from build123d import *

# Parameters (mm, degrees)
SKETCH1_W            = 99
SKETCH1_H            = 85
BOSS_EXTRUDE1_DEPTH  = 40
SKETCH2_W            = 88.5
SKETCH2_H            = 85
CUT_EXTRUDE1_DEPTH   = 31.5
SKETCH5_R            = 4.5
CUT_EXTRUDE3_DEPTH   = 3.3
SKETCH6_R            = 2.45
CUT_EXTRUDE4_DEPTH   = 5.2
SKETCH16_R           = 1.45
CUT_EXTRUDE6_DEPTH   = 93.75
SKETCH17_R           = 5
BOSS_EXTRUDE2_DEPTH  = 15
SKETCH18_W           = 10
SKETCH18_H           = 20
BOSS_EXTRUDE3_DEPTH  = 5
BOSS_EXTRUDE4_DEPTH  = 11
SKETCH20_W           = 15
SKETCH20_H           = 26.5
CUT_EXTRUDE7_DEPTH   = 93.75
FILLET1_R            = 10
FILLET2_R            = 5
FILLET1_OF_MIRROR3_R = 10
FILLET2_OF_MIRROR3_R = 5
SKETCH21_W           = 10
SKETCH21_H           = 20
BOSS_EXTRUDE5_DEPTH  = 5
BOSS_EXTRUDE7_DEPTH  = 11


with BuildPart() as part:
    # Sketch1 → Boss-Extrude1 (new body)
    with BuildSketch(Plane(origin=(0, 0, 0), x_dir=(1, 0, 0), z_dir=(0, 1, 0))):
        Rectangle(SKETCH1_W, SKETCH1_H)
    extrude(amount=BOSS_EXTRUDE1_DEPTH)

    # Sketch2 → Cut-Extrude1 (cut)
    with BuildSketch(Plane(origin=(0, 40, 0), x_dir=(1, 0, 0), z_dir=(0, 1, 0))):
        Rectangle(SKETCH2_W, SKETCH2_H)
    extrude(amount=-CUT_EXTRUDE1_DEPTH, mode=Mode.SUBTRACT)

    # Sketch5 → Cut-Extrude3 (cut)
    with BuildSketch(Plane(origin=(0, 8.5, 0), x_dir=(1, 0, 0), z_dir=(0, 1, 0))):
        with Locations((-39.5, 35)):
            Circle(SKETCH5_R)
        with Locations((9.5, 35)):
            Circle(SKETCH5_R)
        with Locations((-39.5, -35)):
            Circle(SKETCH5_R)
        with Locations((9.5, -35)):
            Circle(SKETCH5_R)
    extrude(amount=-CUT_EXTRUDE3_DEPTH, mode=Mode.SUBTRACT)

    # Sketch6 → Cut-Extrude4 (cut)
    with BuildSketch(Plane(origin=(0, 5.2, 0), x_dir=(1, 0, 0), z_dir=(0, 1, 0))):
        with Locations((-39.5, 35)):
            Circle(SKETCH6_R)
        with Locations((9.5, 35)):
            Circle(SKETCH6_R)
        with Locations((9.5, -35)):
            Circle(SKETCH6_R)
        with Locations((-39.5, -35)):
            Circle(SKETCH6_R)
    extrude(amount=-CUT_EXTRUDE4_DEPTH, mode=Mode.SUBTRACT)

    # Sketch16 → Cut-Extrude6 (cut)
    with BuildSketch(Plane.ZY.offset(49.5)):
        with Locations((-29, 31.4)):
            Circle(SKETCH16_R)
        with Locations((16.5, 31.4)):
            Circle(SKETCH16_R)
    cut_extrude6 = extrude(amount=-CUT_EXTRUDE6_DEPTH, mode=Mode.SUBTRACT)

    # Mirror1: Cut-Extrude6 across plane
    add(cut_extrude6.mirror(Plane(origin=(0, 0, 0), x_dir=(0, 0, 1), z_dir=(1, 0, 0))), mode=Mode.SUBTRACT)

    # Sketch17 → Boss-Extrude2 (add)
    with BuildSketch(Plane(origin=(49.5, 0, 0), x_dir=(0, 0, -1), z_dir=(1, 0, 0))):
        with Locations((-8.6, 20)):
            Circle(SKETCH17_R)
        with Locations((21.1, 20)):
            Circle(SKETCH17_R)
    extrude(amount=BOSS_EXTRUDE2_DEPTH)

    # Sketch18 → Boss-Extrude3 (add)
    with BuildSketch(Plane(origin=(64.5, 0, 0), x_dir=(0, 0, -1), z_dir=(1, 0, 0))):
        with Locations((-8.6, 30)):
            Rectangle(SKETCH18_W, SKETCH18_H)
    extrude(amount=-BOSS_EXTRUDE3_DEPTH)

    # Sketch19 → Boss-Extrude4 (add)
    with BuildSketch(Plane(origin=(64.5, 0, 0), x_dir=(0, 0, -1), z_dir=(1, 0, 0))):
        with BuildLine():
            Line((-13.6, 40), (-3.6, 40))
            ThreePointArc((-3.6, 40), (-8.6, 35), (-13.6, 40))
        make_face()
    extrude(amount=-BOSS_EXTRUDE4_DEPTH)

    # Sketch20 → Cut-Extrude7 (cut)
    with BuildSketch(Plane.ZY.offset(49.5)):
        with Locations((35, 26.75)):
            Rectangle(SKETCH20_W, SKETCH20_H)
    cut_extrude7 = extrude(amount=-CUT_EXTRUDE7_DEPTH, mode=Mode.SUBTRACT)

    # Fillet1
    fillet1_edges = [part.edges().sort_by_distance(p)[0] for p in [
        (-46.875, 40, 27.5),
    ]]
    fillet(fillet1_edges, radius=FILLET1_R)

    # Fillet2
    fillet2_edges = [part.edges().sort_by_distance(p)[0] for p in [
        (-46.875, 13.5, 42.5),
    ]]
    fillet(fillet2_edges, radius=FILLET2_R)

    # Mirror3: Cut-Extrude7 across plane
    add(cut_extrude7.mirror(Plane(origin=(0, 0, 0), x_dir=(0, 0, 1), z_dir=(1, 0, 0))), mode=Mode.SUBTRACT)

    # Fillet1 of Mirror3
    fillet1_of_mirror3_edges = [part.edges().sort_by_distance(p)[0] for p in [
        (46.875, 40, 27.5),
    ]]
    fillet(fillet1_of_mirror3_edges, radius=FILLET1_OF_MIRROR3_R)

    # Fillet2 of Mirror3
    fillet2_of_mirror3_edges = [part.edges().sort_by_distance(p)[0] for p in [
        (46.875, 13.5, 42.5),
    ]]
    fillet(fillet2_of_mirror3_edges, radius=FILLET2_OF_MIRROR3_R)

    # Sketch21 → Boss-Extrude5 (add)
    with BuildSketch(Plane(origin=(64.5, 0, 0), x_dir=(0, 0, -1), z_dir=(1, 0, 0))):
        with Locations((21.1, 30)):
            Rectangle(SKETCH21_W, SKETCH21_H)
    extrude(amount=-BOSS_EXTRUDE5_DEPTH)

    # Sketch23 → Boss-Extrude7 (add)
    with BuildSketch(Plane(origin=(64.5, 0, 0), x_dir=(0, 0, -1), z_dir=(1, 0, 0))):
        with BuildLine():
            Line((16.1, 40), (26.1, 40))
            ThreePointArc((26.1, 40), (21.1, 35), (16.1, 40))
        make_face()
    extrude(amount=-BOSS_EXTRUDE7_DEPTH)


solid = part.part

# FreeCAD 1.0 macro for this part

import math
import FreeCAD as App
import Part
import Sketcher


def edges_at(feature, points):
    """Names of the edges that pass closest to the given points."""
    edges = feature.Shape.Edges
    near = lambda p: min(range(len(edges)), key=lambda i: edges[i].distToShape(Part.Vertex(*p))[0])
    return sorted({f"Edge{near(p) + 1}" for p in points})


def add_polygon(sketch, points):
    """Adds a closed chain of lines whose ends are joined by coincident constraints."""
    first, n = sketch.GeometryCount, len(points)
    for a, b in zip(points, points[1:] + points[:1]):
        sketch.addGeometry(Part.LineSegment(App.Vector(*a, 0), App.Vector(*b, 0)), False)
    for i in range(n):
        sketch.addConstraint(Sketcher.Constraint("Coincident", first + i, 2, first + (i + 1) % n, 1))

doc = App.newDocument("Part")
params = doc.addObject("Spreadsheet::Sheet", "Params")
for row, (alias, value) in enumerate([
    ("sketch1_width", "99 mm"),
    ("sketch1_height", "85 mm"),
    ("pad1_length", "40 mm"),
    ("sketch2_height", "85 mm"),
    ("sketch2_width", "88.5 mm"),
    ("pocket1_length", "31.5 mm"),
    ("sketch3_diameter", "9 mm"),
    ("pocket2_length", "3.3 mm"),
    ("sketch4_diameter", "4.9 mm"),
    ("pocket3_length", "5.2 mm"),
    ("sketch5_diameter", "2.9 mm"),
    ("pocket4_length", "93.75 mm"),
    ("sketch6_diameter", "10 mm"),
    ("pad2_length", "15 mm"),
    ("sketch7_width", "20 mm"),
    ("sketch7_height", "10 mm"),
    ("pad3_length", "5 mm"),
    ("sketch8_radius", "5 mm"),
    ("pad4_length", "11 mm"),
    ("sketch9_height", "15 mm"),
    ("sketch9_width", "26.5 mm"),
    ("pocket5_length", "93.75 mm"),
    ("fillet_radius", "10 mm"),
    ("fillet2_radius", "5 mm"),
    ("fillet3_radius", "10 mm"),
    ("fillet4_radius", "5 mm"),
    ("sketch10_width", "20 mm"),
    ("sketch10_height", "10 mm"),
    ("pad5_length", "5 mm"),
    ("sketch11_radius", "5 mm"),
    ("pad6_length", "11 mm"),
], start=1):
    params.set(f"A{row}", alias)
    params.set(f"B{row}", "=" + value)
    params.setAlias(f"B{row}", alias)

body = doc.addObject("PartDesign::Body", "Body")

# Sketch on XZ plane
sketch1 = body.newObject("Sketcher::SketchObject", "Sketch")
sketch1.AttachmentSupport = (doc.getObject("XZ_Plane"), [""])
sketch1.MapMode = "FlatFace"
add_polygon(sketch1, [(-50, -42), (-50, 42), (50, 42), (50, -42)])  # lines 0-3
sketch1.addConstraint(Sketcher.Constraint("Vertical", 0))
sketch1.addConstraint(Sketcher.Constraint("Horizontal", 1))
sketch1.addConstraint(Sketcher.Constraint("Vertical", 2))
sketch1.addConstraint(Sketcher.Constraint("Horizontal", 3))
sketch1.addConstraint(Sketcher.Constraint("Symmetric", 0, 2, 2, 2, -1, 1))
sketch1.addConstraint(Sketcher.Constraint("DistanceX", 1, 1, 1, 2, 99.0))
sketch1.addConstraint(Sketcher.Constraint("DistanceY", 0, 1, 0, 2, 85.0))
sketch1.setExpression("Constraints[9]", "Params.sketch1_width")
sketch1.setExpression("Constraints[10]", "Params.sketch1_height")
pad1 = body.newObject("PartDesign::Pad", "Pad")
pad1.Profile = sketch1
pad1.setExpression("Length", "Params.pad1_length")
pad1.Reversed = True

# Sketch on XZ plane
sketch2 = body.newObject("Sketcher::SketchObject", "Sketch001")
sketch2.AttachmentSupport = (doc.getObject("XZ_Plane"), [""])
sketch2.MapMode = "FlatFace"
sketch2.AttachmentOffset = App.Placement(App.Vector(0, 0, -40), App.Rotation())
add_polygon(sketch2, [(-44, -42), (-44, 42), (44, 42), (44, -42)])  # lines 0-3
sketch2.addConstraint(Sketcher.Constraint("Vertical", 0))
sketch2.addConstraint(Sketcher.Constraint("Horizontal", 1))
sketch2.addConstraint(Sketcher.Constraint("Vertical", 2))
sketch2.addConstraint(Sketcher.Constraint("Horizontal", 3))
sketch2.addConstraint(Sketcher.Constraint("Symmetric", 0, 2, 2, 2, -1, 1))
sketch2.addConstraint(Sketcher.Constraint("DistanceY", 0, 1, 0, 2, 85.0))
sketch2.addConstraint(Sketcher.Constraint("DistanceX", 1, 1, 1, 2, 88.5))
sketch2.setExpression("Constraints[9]", "Params.sketch2_height")
sketch2.setExpression("Constraints[10]", "Params.sketch2_width")
pocket1 = body.newObject("PartDesign::Pocket", "Pocket")
pocket1.Profile = sketch2
pocket1.setExpression("Length", "Params.pocket1_length")
pocket1.Reversed = True

# Sketch on XZ plane
sketch3 = body.newObject("Sketcher::SketchObject", "Sketch002")
sketch3.AttachmentSupport = (doc.getObject("XZ_Plane"), [""])
sketch3.MapMode = "FlatFace"
sketch3.AttachmentOffset = App.Placement(App.Vector(0, 0, -8.5), App.Rotation())
sketch3.addGeometry(Part.Circle(App.Vector(-39.5, -35, 0), App.Vector(0, 0, 1), 4.5), False)
sketch3.addGeometry(Part.Circle(App.Vector(9.5, -35, 0), App.Vector(0, 0, 1), 4.5), False)
sketch3.addGeometry(Part.Circle(App.Vector(-39.5, 35, 0), App.Vector(0, 0, 1), 4.5), False)
sketch3.addGeometry(Part.Circle(App.Vector(9.5, 35, 0), App.Vector(0, 0, 1), 4.5), False)
sketch3.addConstraint(Sketcher.Constraint("Equal", 0, 1))
sketch3.addConstraint(Sketcher.Constraint("Equal", 1, 2))
sketch3.addConstraint(Sketcher.Constraint("Equal", 2, 3))
sketch3.addConstraint(Sketcher.Constraint("Symmetric", 0, 3, 2, 3, -1))
sketch3.addConstraint(Sketcher.Constraint("Symmetric", 1, 3, 3, 3, -1))
sketch3.addConstraint(Sketcher.Constraint("Horizontal", 0, 3, 1, 3))
sketch3.addConstraint(Sketcher.Constraint("Diameter", 0, 9.0))
sketch3.addConstraint(Sketcher.Constraint("DistanceY", 0, 3, -1, 1, 35.0))
sketch3.addConstraint(Sketcher.Constraint("DistanceX", 0, 3, 1, 3, 49.0))
sketch3.addConstraint(Sketcher.Constraint("DistanceX", 0, 3, -1, 1, 39.5))
sketch3.setExpression("Constraints[6]", "Params.sketch3_diameter")
pocket2 = body.newObject("PartDesign::Pocket", "Pocket001")
pocket2.Profile = sketch3
pocket2.setExpression("Length", "Params.pocket2_length")
pocket2.Reversed = True

# Sketch on XZ plane
sketch4 = body.newObject("Sketcher::SketchObject", "Sketch003")
sketch4.AttachmentSupport = (doc.getObject("XZ_Plane"), [""])
sketch4.MapMode = "FlatFace"
sketch4.AttachmentOffset = App.Placement(App.Vector(0, 0, -5.2), App.Rotation())
sketch4.addGeometry(Part.Circle(App.Vector(-39.5, -35, 0), App.Vector(0, 0, 1), 2.5), False)
sketch4.addGeometry(Part.Circle(App.Vector(9.5, -35, 0), App.Vector(0, 0, 1), 2.5), False)
sketch4.addGeometry(Part.Circle(App.Vector(9.5, 35, 0), App.Vector(0, 0, 1), 2.5), False)
sketch4.addGeometry(Part.Circle(App.Vector(-39.5, 35, 0), App.Vector(0, 0, 1), 2.5), False)
sketch4.addConstraint(Sketcher.Constraint("Equal", 0, 1))
sketch4.addConstraint(Sketcher.Constraint("Equal", 1, 2))
sketch4.addConstraint(Sketcher.Constraint("Equal", 2, 3))
sketch4.addConstraint(Sketcher.Constraint("Symmetric", 1, 3, 2, 3, -1))
sketch4.addConstraint(Sketcher.Constraint("Symmetric", 0, 3, 3, 3, -1))
sketch4.addConstraint(Sketcher.Constraint("Horizontal", 0, 3, 1, 3))
sketch4.addConstraint(Sketcher.Constraint("Diameter", 0, 4.9))
sketch4.addConstraint(Sketcher.Constraint("DistanceY", 0, 3, -1, 1, 35.0))
sketch4.addConstraint(Sketcher.Constraint("DistanceX", 0, 3, 1, 3, 49.0))
sketch4.addConstraint(Sketcher.Constraint("DistanceX", 0, 3, -1, 1, 39.5))
sketch4.setExpression("Constraints[6]", "Params.sketch4_diameter")
pocket3 = body.newObject("PartDesign::Pocket", "Pocket002")
pocket3.Profile = sketch4
pocket3.setExpression("Length", "Params.pocket3_length")
pocket3.Reversed = True

# Sketch on YZ plane
sketch5 = body.newObject("Sketcher::SketchObject", "Sketch004")
sketch5.AttachmentSupport = (doc.getObject("YZ_Plane"), [""])
sketch5.MapMode = "FlatFace"
sketch5.AttachmentOffset = App.Placement(App.Vector(0, 0, -49.5), App.Rotation())
sketch5.addGeometry(Part.Circle(App.Vector(31.4, -29, 0), App.Vector(0, 0, 1), 1.4), False)
sketch5.addGeometry(Part.Circle(App.Vector(31.4, 16.5, 0), App.Vector(0, 0, 1), 1.4), False)
sketch5.addConstraint(Sketcher.Constraint("Equal", 0, 1))
sketch5.addConstraint(Sketcher.Constraint("Vertical", 0, 3, 1, 3))
sketch5.addConstraint(Sketcher.Constraint("Diameter", 0, 2.9))
sketch5.addConstraint(Sketcher.Constraint("DistanceY", 0, 3, -1, 1, 29.0))
sketch5.addConstraint(Sketcher.Constraint("DistanceX", -1, 1, 0, 3, 31.4))
sketch5.addConstraint(Sketcher.Constraint("DistanceY", -1, 1, 1, 3, 16.5))
sketch5.setExpression("Constraints[2]", "Params.sketch5_diameter")
pocket4 = body.newObject("PartDesign::Pocket", "Pocket003")
pocket4.Profile = sketch5
pocket4.setExpression("Length", "Params.pocket4_length")
pocket4.Reversed = True
doc.recompute()

mirrored = body.newObject("PartDesign::Mirrored", "Mirrored")
mirrored.Originals = [pocket4]
mirrored.MirrorPlane = (doc.getObject("YZ_Plane"), [""])
body.Tip = mirrored

# Sketch on YZ plane
sketch6 = body.newObject("Sketcher::SketchObject", "Sketch005")
sketch6.AttachmentSupport = (doc.getObject("YZ_Plane"), [""])
sketch6.MapMode = "FlatFace"
sketch6.AttachmentOffset = App.Placement(App.Vector(0, 0, 49.5), App.Rotation())
sketch6.addGeometry(Part.Circle(App.Vector(20, 9, 0), App.Vector(0, 0, 1), 5), False)
sketch6.addGeometry(Part.Circle(App.Vector(20, -21, 0), App.Vector(0, 0, 1), 5), False)
sketch6.addConstraint(Sketcher.Constraint("Equal", 0, 1))
sketch6.addConstraint(Sketcher.Constraint("Vertical", 0, 3, 1, 3))
sketch6.addConstraint(Sketcher.Constraint("Diameter", 0, 10.0))
sketch6.addConstraint(Sketcher.Constraint("DistanceX", -1, 1, 0, 3, 20.0))
sketch6.addConstraint(Sketcher.Constraint("DistanceY", -1, 1, 0, 3, 8.6))
sketch6.addConstraint(Sketcher.Constraint("DistanceY", 1, 3, -1, 1, 21.1))
sketch6.setExpression("Constraints[2]", "Params.sketch6_diameter")
pad2 = body.newObject("PartDesign::Pad", "Pad001")
pad2.Profile = sketch6
pad2.setExpression("Length", "Params.pad2_length")

# Sketch on YZ plane
sketch7 = body.newObject("Sketcher::SketchObject", "Sketch006")
sketch7.AttachmentSupport = (doc.getObject("YZ_Plane"), [""])
sketch7.MapMode = "FlatFace"
sketch7.AttachmentOffset = App.Placement(App.Vector(0, 0, 64.5), App.Rotation())
add_polygon(sketch7, [(40, 14), (20, 14), (20, 4), (40, 4)])  # lines 0-3
sketch7.addConstraint(Sketcher.Constraint("Horizontal", 0))
sketch7.addConstraint(Sketcher.Constraint("Vertical", 1))
sketch7.addConstraint(Sketcher.Constraint("Horizontal", 2))
sketch7.addConstraint(Sketcher.Constraint("Vertical", 3))
sketch7.addConstraint(Sketcher.Constraint("DistanceX", 0, 2, 0, 1, 20.0))
sketch7.addConstraint(Sketcher.Constraint("DistanceY", 1, 2, 1, 1, 10.0))
sketch7.addConstraint(Sketcher.Constraint("DistanceX", -1, 1, 0, 2, 20.0))
sketch7.addConstraint(Sketcher.Constraint("DistanceY", -1, 1, 0, 2, 13.6))
sketch7.setExpression("Constraints[8]", "Params.sketch7_width")
sketch7.setExpression("Constraints[9]", "Params.sketch7_height")
pad3 = body.newObject("PartDesign::Pad", "Pad002")
pad3.Profile = sketch7
pad3.setExpression("Length", "Params.pad3_length")
pad3.Reversed = True

# Sketch on YZ plane
sketch8 = body.newObject("Sketcher::SketchObject", "Sketch007")
sketch8.AttachmentSupport = (doc.getObject("YZ_Plane"), [""])
sketch8.MapMode = "FlatFace"
sketch8.AttachmentOffset = App.Placement(App.Vector(0, 0, 64.5), App.Rotation())
sketch8.addGeometry(Part.LineSegment(App.Vector(40, 4, 0), App.Vector(40, 14, 0)), False)
sketch8.addGeometry(Part.ArcOfCircle(Part.Circle(App.Vector(40, 9, 0), App.Vector(0, 0, 1), 5), math.radians(90), math.radians(270)), False)
sketch8.addConstraint(Sketcher.Constraint("Coincident", 0, 1, 1, 2))
sketch8.addConstraint(Sketcher.Constraint("Coincident", 1, 1, 0, 2))
sketch8.addConstraint(Sketcher.Constraint("Vertical", 0))
sketch8.addConstraint(Sketcher.Constraint("Vertical", 1, 3, 0, 1))
sketch8.addConstraint(Sketcher.Constraint("Radius", 1, 5.0))
sketch8.addConstraint(Sketcher.Constraint("DistanceX", -1, 1, 1, 3, 40.0))
sketch8.addConstraint(Sketcher.Constraint("DistanceY", -1, 1, 1, 3, 8.6))
sketch8.setExpression("Constraints[4]", "Params.sketch8_radius")
pad4 = body.newObject("PartDesign::Pad", "Pad003")
pad4.Profile = sketch8
pad4.setExpression("Length", "Params.pad4_length")
pad4.Reversed = True

# Sketch on YZ plane
sketch9 = body.newObject("Sketcher::SketchObject", "Sketch008")
sketch9.AttachmentSupport = (doc.getObject("YZ_Plane"), [""])
sketch9.MapMode = "FlatFace"
sketch9.AttachmentOffset = App.Placement(App.Vector(0, 0, -49.5), App.Rotation())
add_polygon(sketch9, [(40, 28), (14, 28), (14, 42), (40, 42)])  # lines 0-3
sketch9.addConstraint(Sketcher.Constraint("Horizontal", 0))
sketch9.addConstraint(Sketcher.Constraint("Vertical", 1))
sketch9.addConstraint(Sketcher.Constraint("Horizontal", 2))
sketch9.addConstraint(Sketcher.Constraint("Vertical", 3))
sketch9.addConstraint(Sketcher.Constraint("DistanceY", 1, 1, 1, 2, 15.0))
sketch9.addConstraint(Sketcher.Constraint("DistanceX", 0, 2, 0, 1, 26.5))
sketch9.addConstraint(Sketcher.Constraint("DistanceX", -1, 1, 2, 2, 40.0))
sketch9.addConstraint(Sketcher.Constraint("DistanceY", -1, 1, 0, 2, 27.5))
sketch9.setExpression("Constraints[8]", "Params.sketch9_height")
sketch9.setExpression("Constraints[9]", "Params.sketch9_width")
pocket5 = body.newObject("PartDesign::Pocket", "Pocket004")
pocket5.Profile = sketch9
pocket5.setExpression("Length", "Params.pocket5_length")
pocket5.Reversed = True
doc.recompute()

fillet = body.newObject("PartDesign::Fillet", "Fillet")
fillet.Base = (pocket5, edges_at(pocket5, [(-46.875, 40, 27.5)]))
fillet.setExpression("Radius", "Params.fillet_radius")
doc.recompute()

fillet2 = body.newObject("PartDesign::Fillet", "Fillet001")
fillet2.Base = (fillet, edges_at(fillet, [(-46.875, 13.5, 42.5)]))
fillet2.setExpression("Radius", "Params.fillet2_radius")
doc.recompute()

mirrored2 = body.newObject("PartDesign::Mirrored", "Mirrored001")
mirrored2.Originals = [pocket5]
mirrored2.MirrorPlane = (doc.getObject("YZ_Plane"), [""])
body.Tip = mirrored2
doc.recompute()

fillet3 = body.newObject("PartDesign::Fillet", "Fillet002")
fillet3.Base = (mirrored2, edges_at(mirrored2, [(46.875, 40, 27.5)]))
fillet3.setExpression("Radius", "Params.fillet3_radius")
doc.recompute()

fillet4 = body.newObject("PartDesign::Fillet", "Fillet003")
fillet4.Base = (fillet3, edges_at(fillet3, [(46.875, 13.5, 42.5)]))
fillet4.setExpression("Radius", "Params.fillet4_radius")

# Sketch on YZ plane
sketch10 = body.newObject("Sketcher::SketchObject", "Sketch009")
sketch10.AttachmentSupport = (doc.getObject("YZ_Plane"), [""])
sketch10.MapMode = "FlatFace"
sketch10.AttachmentOffset = App.Placement(App.Vector(0, 0, 64.5), App.Rotation())
add_polygon(sketch10, [(40, -16), (20, -16), (20, -26), (40, -26)])  # lines 0-3
sketch10.addConstraint(Sketcher.Constraint("Horizontal", 0))
sketch10.addConstraint(Sketcher.Constraint("Vertical", 1))
sketch10.addConstraint(Sketcher.Constraint("Horizontal", 2))
sketch10.addConstraint(Sketcher.Constraint("Vertical", 3))
sketch10.addConstraint(Sketcher.Constraint("DistanceX", 0, 2, 0, 1, 20.0))
sketch10.addConstraint(Sketcher.Constraint("DistanceY", 1, 2, 1, 1, 10.0))
sketch10.addConstraint(Sketcher.Constraint("DistanceX", -1, 1, 0, 2, 20.0))
sketch10.addConstraint(Sketcher.Constraint("DistanceY", 0, 2, -1, 1, 16.1))
sketch10.setExpression("Constraints[8]", "Params.sketch10_width")
sketch10.setExpression("Constraints[9]", "Params.sketch10_height")
pad5 = body.newObject("PartDesign::Pad", "Pad004")
pad5.Profile = sketch10
pad5.setExpression("Length", "Params.pad5_length")
pad5.Reversed = True

# Sketch on YZ plane
sketch11 = body.newObject("Sketcher::SketchObject", "Sketch010")
sketch11.AttachmentSupport = (doc.getObject("YZ_Plane"), [""])
sketch11.MapMode = "FlatFace"
sketch11.AttachmentOffset = App.Placement(App.Vector(0, 0, 64.5), App.Rotation())
sketch11.addGeometry(Part.LineSegment(App.Vector(40, -26, 0), App.Vector(40, -16, 0)), False)
sketch11.addGeometry(Part.ArcOfCircle(Part.Circle(App.Vector(40, -21, 0), App.Vector(0, 0, 1), 5), math.radians(90), math.radians(270)), False)
sketch11.addConstraint(Sketcher.Constraint("Coincident", 0, 1, 1, 2))
sketch11.addConstraint(Sketcher.Constraint("Coincident", 1, 1, 0, 2))
sketch11.addConstraint(Sketcher.Constraint("Vertical", 0))
sketch11.addConstraint(Sketcher.Constraint("Vertical", 1, 3, 0, 1))
sketch11.addConstraint(Sketcher.Constraint("Radius", 1, 5.0))
sketch11.addConstraint(Sketcher.Constraint("DistanceX", -1, 1, 1, 3, 40.0))
sketch11.addConstraint(Sketcher.Constraint("DistanceY", 1, 3, -1, 1, 21.1))
sketch11.setExpression("Constraints[4]", "Params.sketch11_radius")
pad6 = body.newObject("PartDesign::Pad", "Pad005")
pad6.Profile = sketch11
pad6.setExpression("Length", "Params.pad6_length")
pad6.Reversed = True

doc.recompute()
